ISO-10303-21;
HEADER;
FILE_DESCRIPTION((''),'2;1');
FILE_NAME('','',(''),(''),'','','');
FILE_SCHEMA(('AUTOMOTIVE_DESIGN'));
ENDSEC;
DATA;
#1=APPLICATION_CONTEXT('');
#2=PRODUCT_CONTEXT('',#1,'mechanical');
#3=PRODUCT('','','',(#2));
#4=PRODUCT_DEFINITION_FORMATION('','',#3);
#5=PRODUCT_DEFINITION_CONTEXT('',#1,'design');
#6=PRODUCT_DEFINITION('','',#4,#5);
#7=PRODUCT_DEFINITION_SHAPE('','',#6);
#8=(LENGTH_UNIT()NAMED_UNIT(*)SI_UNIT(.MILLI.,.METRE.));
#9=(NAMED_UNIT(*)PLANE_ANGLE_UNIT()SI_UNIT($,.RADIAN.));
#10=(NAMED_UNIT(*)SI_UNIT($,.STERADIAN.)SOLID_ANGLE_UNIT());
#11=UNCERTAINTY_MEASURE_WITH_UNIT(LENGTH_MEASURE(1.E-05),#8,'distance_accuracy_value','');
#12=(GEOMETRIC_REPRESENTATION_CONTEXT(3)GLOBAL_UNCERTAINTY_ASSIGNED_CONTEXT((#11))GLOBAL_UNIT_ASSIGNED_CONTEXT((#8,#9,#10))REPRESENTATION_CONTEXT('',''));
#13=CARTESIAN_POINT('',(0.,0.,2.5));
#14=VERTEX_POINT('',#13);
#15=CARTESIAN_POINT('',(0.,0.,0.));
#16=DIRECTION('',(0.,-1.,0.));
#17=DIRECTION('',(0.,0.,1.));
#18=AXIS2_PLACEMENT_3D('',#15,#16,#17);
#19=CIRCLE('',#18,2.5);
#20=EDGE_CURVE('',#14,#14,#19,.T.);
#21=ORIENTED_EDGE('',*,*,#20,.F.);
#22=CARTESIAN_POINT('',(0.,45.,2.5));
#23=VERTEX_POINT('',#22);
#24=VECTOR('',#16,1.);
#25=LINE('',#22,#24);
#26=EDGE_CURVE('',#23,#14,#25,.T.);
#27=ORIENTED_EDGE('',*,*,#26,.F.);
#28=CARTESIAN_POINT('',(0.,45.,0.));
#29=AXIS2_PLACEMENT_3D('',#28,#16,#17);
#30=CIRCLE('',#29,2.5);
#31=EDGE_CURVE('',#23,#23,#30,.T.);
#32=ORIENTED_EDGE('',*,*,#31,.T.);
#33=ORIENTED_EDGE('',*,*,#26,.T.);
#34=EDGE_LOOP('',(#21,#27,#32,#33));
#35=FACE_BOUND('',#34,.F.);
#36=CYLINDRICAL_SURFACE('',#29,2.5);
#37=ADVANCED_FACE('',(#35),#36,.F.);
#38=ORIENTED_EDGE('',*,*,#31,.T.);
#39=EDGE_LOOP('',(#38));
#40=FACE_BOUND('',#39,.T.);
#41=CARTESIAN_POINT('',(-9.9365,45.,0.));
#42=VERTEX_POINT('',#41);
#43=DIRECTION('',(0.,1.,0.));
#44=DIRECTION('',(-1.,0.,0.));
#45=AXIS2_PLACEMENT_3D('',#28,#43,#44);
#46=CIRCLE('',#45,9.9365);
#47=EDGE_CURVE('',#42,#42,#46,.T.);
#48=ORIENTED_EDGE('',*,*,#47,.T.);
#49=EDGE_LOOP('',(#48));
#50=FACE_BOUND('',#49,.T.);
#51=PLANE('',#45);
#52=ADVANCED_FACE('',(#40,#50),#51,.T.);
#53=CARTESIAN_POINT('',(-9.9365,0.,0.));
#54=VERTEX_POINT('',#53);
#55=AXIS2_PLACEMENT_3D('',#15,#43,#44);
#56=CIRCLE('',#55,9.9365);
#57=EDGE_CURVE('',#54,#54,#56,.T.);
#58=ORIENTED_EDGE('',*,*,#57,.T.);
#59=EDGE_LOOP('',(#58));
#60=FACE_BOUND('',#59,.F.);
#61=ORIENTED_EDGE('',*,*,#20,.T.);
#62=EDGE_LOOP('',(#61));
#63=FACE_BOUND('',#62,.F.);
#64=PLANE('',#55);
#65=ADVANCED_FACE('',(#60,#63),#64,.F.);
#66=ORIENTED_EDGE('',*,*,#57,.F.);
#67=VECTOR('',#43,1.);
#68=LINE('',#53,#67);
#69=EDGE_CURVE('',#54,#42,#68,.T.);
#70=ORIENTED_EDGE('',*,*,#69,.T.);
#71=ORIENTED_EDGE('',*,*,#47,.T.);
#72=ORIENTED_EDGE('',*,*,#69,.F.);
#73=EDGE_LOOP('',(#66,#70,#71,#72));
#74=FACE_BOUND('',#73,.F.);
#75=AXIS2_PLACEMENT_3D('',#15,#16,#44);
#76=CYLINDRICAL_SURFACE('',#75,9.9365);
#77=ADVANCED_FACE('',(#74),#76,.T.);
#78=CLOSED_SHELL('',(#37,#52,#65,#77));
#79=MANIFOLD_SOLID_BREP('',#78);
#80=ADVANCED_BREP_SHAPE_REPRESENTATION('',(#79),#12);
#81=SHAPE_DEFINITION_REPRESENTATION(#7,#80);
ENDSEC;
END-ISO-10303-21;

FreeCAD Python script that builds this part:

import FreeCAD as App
import Part
import Sketcher
from FreeCAD import Vector

doc = App.newDocument("Part")
body = doc.addObject("PartDesign::Body", "Body")

sketch1 = body.newObject("Sketcher::SketchObject", "Sketch")
sketch1.AttachmentSupport = (doc.getObject("XZ_Plane"), [""])
sketch1.MapMode = "FlatFace"
sketch1.addGeometry(Part.Circle(Vector(0, 0, 0), Vector(0, 0, 1), 10), False)
sketch1.addConstraint([
    Sketcher.Constraint("Coincident", 0, 3, -1, 1),
    Sketcher.Constraint("Diameter", 0, 19.873),
])
pad1 = body.newObject("PartDesign::Pad", "Pad")
pad1.Profile = sketch1
pad1.Length = 30
pad1.Reversed = True

sketch2 = body.newObject("Sketcher::SketchObject", "Sketch001")
sketch2.AttachmentSupport = (doc.getObject("XZ_Plane"), [""])
sketch2.MapMode = "FlatFace"
sketch2.addGeometry(Part.Circle(Vector(0, 0, 0), Vector(0, 0, 1), 10), False)
sketch2.addConstraint([
    Sketcher.Constraint("Coincident", 0, 3, -1, 1),
    Sketcher.Constraint("Diameter", 0, 19.873),
])
pocket1 = body.newObject("PartDesign::Pocket", "Pocket")
pocket1.Profile = sketch2
pocket1.Length = 30

sketch3 = body.newObject("Sketcher::SketchObject", "Sketch002")
sketch3.AttachmentSupport = (doc.getObject("XZ_Plane"), [""])
sketch3.MapMode = "FlatFace"
sketch3.addGeometry(Part.Circle(Vector(0, 0, 0), Vector(0, 0, 1), 10), False)
sketch3.addConstraint([
    Sketcher.Constraint("Coincident", 0, 3, -1, 1),
    Sketcher.Constraint("Diameter", 0, 19.873),
])
pad2 = body.newObject("PartDesign::Pad", "Pad001")
pad2.Profile = sketch3
pad2.Length = 45
pad2.Reversed = True

sketch4 = body.newObject("Sketcher::SketchObject", "Sketch003")
sketch4.AttachmentSupport = (doc.getObject("XZ_Plane"), [""])
sketch4.MapMode = "FlatFace"
sketch4.AttachmentOffset = App.Placement(Vector(0, 0, -45), App.Rotation())
sketch4.addGeometry(Part.Circle(Vector(0, 0, 0), Vector(0, 0, 1), 2.5), False)
sketch4.addConstraint([
    Sketcher.Constraint("Coincident", 0, 3, -1, 1),
    Sketcher.Constraint("Diameter", 0, 5.0),
])
doc.recompute()
hole = body.newObject("PartDesign::Hole", "Hole")
hole.Profile = sketch4
hole.ThreadType = "None"
hole.Diameter = 5
hole.DepthType = "ThroughAll"
hole.Reversed = True

doc.recompute()
